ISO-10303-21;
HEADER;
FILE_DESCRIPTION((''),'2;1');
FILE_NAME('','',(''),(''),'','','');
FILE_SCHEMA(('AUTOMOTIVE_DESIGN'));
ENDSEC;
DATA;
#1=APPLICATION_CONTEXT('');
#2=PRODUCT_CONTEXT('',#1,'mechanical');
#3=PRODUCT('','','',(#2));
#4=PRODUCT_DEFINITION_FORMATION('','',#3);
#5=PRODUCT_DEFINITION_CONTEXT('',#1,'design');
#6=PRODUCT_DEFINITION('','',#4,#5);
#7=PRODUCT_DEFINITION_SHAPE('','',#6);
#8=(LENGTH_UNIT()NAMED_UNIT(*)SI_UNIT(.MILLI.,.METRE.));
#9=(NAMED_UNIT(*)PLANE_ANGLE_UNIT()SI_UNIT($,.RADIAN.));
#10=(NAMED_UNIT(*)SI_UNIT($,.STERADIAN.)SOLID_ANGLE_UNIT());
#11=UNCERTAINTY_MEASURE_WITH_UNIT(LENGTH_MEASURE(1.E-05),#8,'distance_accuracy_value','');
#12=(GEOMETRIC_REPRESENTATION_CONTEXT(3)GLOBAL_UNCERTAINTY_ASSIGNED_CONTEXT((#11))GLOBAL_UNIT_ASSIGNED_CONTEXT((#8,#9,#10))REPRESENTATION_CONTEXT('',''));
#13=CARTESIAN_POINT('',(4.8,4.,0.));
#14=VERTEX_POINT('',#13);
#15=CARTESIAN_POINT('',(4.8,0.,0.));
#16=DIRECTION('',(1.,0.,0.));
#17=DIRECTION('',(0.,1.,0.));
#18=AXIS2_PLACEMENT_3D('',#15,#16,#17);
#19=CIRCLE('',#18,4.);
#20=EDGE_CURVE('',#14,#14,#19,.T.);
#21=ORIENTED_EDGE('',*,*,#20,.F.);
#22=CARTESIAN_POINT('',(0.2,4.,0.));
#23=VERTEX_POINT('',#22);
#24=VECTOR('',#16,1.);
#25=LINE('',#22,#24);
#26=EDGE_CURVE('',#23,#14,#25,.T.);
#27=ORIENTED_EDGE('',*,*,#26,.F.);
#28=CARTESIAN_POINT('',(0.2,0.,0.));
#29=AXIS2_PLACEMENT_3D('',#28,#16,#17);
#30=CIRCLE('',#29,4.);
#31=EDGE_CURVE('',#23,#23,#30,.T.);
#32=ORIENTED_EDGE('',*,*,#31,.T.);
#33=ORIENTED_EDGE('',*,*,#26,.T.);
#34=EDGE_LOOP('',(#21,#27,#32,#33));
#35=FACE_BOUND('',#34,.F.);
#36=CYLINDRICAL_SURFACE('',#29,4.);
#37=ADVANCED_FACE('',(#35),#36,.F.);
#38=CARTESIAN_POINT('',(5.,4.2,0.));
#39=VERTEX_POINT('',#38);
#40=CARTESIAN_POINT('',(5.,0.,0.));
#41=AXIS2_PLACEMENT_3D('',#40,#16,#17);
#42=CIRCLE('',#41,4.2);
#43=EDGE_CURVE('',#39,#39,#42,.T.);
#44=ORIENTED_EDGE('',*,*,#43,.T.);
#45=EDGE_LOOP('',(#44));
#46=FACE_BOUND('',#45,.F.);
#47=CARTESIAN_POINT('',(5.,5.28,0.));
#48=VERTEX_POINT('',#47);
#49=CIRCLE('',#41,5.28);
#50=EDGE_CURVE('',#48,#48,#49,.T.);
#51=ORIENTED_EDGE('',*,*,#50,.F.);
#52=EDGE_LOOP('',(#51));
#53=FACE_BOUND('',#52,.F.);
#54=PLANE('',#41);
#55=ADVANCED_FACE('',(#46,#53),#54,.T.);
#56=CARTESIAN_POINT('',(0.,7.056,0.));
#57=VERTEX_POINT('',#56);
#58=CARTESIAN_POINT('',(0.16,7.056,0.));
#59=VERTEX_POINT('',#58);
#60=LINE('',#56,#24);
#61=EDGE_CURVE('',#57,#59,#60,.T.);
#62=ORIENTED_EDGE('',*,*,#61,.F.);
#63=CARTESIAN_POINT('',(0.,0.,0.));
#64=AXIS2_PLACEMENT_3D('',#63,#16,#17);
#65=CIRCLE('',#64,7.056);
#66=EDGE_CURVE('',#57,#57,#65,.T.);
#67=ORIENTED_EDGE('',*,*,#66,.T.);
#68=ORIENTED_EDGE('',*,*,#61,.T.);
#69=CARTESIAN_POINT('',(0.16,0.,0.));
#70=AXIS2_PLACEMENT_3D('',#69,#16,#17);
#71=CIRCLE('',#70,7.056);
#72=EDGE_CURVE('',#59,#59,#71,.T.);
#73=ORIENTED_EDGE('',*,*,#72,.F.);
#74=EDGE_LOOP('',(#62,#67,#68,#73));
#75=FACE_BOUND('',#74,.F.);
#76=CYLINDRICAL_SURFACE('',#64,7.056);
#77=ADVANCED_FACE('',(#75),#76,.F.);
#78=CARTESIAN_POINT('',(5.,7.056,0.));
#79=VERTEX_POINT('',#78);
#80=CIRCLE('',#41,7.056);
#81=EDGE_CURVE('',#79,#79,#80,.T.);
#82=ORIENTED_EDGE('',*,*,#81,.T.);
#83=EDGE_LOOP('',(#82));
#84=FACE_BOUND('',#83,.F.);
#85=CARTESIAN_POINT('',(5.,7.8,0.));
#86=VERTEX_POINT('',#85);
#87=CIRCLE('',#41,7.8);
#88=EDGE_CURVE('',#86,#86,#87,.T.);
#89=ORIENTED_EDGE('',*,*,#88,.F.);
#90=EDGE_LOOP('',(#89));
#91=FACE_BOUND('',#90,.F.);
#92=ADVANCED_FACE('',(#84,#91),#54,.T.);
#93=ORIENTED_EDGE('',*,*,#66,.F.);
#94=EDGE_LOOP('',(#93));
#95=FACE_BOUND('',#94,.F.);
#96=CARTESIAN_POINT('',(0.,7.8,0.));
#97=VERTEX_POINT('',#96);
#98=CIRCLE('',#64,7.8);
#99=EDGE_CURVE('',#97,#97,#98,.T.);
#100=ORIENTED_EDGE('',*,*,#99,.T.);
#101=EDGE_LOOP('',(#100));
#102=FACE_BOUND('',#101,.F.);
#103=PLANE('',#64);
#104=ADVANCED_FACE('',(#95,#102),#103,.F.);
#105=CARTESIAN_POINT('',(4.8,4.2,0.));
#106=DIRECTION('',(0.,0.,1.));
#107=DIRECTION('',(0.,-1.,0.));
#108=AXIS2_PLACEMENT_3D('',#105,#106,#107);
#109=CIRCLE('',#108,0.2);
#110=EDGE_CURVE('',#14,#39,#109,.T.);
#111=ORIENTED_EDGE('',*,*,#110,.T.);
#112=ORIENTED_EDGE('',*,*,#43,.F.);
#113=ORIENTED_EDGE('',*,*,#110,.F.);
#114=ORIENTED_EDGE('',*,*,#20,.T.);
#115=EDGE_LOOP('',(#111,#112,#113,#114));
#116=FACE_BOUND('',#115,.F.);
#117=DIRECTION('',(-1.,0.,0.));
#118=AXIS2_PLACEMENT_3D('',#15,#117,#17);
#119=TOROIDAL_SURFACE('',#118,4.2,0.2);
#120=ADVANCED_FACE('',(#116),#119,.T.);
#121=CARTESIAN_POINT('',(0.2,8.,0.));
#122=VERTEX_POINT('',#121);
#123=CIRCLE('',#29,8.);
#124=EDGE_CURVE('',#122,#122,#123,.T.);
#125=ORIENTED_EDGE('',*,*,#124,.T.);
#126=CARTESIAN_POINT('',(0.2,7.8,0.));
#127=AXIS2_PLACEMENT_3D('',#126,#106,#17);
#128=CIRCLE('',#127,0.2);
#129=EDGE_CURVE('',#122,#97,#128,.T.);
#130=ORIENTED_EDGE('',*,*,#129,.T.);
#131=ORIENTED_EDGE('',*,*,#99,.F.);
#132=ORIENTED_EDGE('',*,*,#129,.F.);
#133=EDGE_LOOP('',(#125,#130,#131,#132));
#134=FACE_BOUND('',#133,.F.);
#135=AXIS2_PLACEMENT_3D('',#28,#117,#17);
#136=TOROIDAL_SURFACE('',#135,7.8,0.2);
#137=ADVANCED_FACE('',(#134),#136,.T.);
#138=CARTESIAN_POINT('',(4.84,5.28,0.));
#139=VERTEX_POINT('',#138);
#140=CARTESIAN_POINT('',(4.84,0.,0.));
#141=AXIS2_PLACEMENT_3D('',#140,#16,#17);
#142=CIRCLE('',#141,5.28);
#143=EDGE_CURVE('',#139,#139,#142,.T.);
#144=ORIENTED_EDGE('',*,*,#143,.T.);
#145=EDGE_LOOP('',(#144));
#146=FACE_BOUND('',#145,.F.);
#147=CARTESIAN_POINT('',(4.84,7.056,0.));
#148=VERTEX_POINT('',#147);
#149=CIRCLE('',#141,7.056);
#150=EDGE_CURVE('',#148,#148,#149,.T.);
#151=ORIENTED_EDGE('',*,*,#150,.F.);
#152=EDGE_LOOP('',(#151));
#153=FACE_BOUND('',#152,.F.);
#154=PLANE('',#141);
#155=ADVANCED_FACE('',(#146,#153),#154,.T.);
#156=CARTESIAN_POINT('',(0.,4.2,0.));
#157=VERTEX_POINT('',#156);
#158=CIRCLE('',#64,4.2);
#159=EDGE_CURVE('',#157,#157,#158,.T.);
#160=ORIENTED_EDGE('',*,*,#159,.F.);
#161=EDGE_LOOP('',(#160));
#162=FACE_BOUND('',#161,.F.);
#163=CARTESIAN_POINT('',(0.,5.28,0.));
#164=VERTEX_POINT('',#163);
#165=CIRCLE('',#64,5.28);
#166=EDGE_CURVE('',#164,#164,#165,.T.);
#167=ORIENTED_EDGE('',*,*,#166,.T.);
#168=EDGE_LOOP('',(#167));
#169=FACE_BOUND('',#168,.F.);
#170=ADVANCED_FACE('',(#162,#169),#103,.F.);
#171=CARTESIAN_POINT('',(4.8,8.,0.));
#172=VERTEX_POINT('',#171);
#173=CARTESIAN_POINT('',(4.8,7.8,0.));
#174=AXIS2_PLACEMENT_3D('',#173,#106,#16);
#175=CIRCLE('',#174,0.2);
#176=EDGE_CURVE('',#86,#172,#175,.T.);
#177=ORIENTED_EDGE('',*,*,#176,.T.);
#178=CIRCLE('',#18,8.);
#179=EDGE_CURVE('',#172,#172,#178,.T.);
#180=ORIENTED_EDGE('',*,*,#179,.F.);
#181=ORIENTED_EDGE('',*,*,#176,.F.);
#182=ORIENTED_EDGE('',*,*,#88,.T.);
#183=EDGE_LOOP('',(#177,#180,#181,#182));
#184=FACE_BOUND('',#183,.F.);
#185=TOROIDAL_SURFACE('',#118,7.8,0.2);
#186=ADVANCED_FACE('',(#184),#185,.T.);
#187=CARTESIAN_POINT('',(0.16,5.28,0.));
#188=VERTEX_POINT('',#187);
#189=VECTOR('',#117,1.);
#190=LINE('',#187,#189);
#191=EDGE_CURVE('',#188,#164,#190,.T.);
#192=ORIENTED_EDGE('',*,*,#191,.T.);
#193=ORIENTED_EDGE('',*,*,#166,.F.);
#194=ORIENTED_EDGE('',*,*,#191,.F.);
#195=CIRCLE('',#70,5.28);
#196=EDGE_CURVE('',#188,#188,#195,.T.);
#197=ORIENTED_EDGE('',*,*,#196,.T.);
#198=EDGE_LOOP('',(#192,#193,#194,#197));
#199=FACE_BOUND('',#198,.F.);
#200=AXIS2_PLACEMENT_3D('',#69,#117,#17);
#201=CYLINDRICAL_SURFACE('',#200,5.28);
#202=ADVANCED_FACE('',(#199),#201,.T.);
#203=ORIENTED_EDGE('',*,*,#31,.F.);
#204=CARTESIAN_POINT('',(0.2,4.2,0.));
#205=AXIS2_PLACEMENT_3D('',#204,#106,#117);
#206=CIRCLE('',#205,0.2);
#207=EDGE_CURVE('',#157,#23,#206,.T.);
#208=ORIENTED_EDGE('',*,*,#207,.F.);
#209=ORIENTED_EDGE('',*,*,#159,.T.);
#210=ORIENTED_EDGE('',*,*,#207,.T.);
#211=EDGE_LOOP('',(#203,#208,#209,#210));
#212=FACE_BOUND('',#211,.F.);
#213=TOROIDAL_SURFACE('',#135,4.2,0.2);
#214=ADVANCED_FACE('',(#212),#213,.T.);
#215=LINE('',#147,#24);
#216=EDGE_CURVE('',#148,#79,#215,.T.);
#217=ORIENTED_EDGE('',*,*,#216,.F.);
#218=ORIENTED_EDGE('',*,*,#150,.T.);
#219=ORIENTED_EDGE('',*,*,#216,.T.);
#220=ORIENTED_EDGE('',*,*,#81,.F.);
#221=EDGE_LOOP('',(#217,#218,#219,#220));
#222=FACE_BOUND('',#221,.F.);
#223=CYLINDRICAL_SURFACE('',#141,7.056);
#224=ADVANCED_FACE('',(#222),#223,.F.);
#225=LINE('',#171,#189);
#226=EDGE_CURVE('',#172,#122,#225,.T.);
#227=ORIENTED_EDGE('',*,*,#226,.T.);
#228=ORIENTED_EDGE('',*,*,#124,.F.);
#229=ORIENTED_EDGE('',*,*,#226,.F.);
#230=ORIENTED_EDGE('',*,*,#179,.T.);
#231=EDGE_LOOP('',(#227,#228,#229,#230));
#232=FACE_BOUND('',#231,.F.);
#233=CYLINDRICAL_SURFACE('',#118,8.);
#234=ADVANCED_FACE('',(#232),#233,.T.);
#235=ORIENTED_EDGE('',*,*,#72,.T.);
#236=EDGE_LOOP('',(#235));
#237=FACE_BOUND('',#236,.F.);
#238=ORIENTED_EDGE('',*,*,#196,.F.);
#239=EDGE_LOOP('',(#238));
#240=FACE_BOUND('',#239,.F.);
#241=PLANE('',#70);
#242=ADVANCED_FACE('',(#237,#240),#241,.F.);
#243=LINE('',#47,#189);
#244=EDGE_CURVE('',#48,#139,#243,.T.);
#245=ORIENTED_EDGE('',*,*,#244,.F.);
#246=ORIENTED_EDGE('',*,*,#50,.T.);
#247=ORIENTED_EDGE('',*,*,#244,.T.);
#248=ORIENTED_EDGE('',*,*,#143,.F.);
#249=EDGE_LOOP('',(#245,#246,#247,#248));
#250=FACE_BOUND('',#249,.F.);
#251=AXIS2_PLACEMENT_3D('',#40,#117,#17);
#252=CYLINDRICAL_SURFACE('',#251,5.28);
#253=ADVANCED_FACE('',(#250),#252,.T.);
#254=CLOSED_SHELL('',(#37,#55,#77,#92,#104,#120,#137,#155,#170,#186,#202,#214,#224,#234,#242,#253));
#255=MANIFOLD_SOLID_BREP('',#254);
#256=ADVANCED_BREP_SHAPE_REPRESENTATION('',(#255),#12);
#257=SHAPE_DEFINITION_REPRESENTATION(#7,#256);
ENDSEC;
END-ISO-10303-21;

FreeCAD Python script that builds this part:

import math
import FreeCAD as App
import Part
import Sketcher

V = App.Vector

doc = App.newDocument("Part")
params = doc.addObject("Spreadsheet::Sheet", "Params")
for row, (alias, value) in enumerate([
    ("sketch1_radius", "0.2 mm"),
    ("sketch1_width", "4.6 mm"),
    ("sketch1_width2", "0.16 mm"),
    ("sketch1_height", "1.08 mm"),
    ("revolution_angle", "360 deg"),
], start=1):
    params.set(f"A{row}", alias)
    params.set(f"B{row}", "=" + value)
    params.setAlias(f"B{row}", alias)

body = doc.addObject("PartDesign::Body", "Body")

# Sketch on XY plane
sketch1 = body.newObject("Sketcher::SketchObject", "Sketch")
sketch1.AttachmentSupport = (doc.getObject("XY_Plane"), [""])
sketch1.MapMode = "FlatFace"
sketch1.addGeometry([
    Part.LineSegment(V(0, 5.28, 0), V(0, 4.2, 0)),  # 0
    Part.ArcOfCircle(Part.Circle(V(0.2, 4.2, 0), V(0, 0, 1), 0.2), math.radians(180), math.radians(270)),  # 1
    Part.LineSegment(V(0.2, 4, 0), V(4.8, 4, 0)),  # 2
    Part.ArcOfCircle(Part.Circle(V(4.8, 4.2, 0), V(0, 0, 1), 0.2), math.radians(-90), math.radians(0)),  # 3
    Part.LineSegment(V(5, 4.2, 0), V(5, 5.28, 0)),  # 4
    Part.LineSegment(V(5, 5.28, 0), V(4.84, 5.28, 0)),  # 5
    Part.LineSegment(V(4.84, 5.28, 0), V(4.84, 7.056, 0)),  # 6
    Part.LineSegment(V(4.84, 7.056, 0), V(5, 7.056, 0)),  # 7
    Part.LineSegment(V(5, 7.056, 0), V(5, 7.8, 0)),  # 8
    Part.ArcOfCircle(Part.Circle(V(4.8, 7.8, 0), V(0, 0, 1), 0.2), math.radians(0), math.radians(90)),  # 9
    Part.LineSegment(V(4.8, 8, 0), V(0.2, 8, 0)),  # 10
    Part.ArcOfCircle(Part.Circle(V(0.2, 7.8, 0), V(0, 0, 1), 0.2), math.radians(90), math.radians(180)),  # 11
    Part.LineSegment(V(0, 7.8, 0), V(0, 7.056, 0)),  # 12
    Part.LineSegment(V(0, 7.056, 0), V(0.16, 7.056, 0)),  # 13
    Part.LineSegment(V(0.16, 7.056, 0), V(0.16, 5.28, 0)),  # 14
    Part.LineSegment(V(0.16, 5.28, 0), V(0, 5.28, 0)),  # 15
], False)
sketch1.addConstraint([
    Sketcher.Constraint("Tangent", 0, 2, 1, 1),
    Sketcher.Constraint("Tangent", 1, 2, 2, 1),
    Sketcher.Constraint("Tangent", 2, 2, 3, 1),
    Sketcher.Constraint("Tangent", 3, 2, 4, 1),
    Sketcher.Constraint("Coincident", 4, 2, 5, 1),
    Sketcher.Constraint("Coincident", 5, 2, 6, 1),
    Sketcher.Constraint("Coincident", 6, 2, 7, 1),
    Sketcher.Constraint("Coincident", 7, 2, 8, 1),
    Sketcher.Constraint("Tangent", 8, 2, 9, 1),
    Sketcher.Constraint("Tangent", 9, 2, 10, 1),
    Sketcher.Constraint("Tangent", 10, 2, 11, 1),
    Sketcher.Constraint("Tangent", 11, 2, 12, 1),
    Sketcher.Constraint("Coincident", 12, 2, 13, 1),
    Sketcher.Constraint("Coincident", 13, 2, 14, 1),
    Sketcher.Constraint("Coincident", 14, 2, 15, 1),
    Sketcher.Constraint("Coincident", 15, 2, 0, 1),
    Sketcher.Constraint("Vertical", 0),
    Sketcher.Constraint("Horizontal", 2),
    Sketcher.Constraint("Vertical", 4),
    Sketcher.Constraint("Horizontal", 5),
    Sketcher.Constraint("Vertical", 6),
    Sketcher.Constraint("Horizontal", 7),
    Sketcher.Constraint("Vertical", 8),
    Sketcher.Constraint("Horizontal", 10),
    Sketcher.Constraint("Vertical", 12),
    Sketcher.Constraint("Horizontal", 13),
    Sketcher.Constraint("Vertical", 14),
    Sketcher.Constraint("Horizontal", 15),
    Sketcher.Constraint("Equal", 1, 3),
    Sketcher.Constraint("Equal", 3, 9),
    Sketcher.Constraint("Equal", 9, 11),
    Sketcher.Constraint("PointOnObject", 0, 2, -2),
    Sketcher.Constraint("PointOnObject", 11, 2, -2),
    Sketcher.Constraint("Horizontal", 7, 2, 12, 2),
    Sketcher.Constraint("Horizontal", 5, 2, 14, 2),
    Sketcher.Constraint("Vertical", 3, 3, 9, 3),
    Sketcher.Constraint("Equal", 7, 13),
    Sketcher.Constraint("Radius", 1, 0.2),
    Sketcher.Constraint("DistanceX", 2, 1, 2, 2, 4.6),
    Sketcher.Constraint("DistanceY", -1, 1, 1, 2, 4.0),
    Sketcher.Constraint("DistanceY", -1, 1, 9, 2, 8.0),
    Sketcher.Constraint("DistanceX", 5, 2, 5, 1, 0.16),
    Sketcher.Constraint("DistanceY", 0, 2, 0, 1, 1.08),
    Sketcher.Constraint("DistanceY", 6, 1, 6, 2, 1.776),
])
sketch1.setExpression("Constraints[37]", "Params.sketch1_radius")
sketch1.setExpression("Constraints[38]", "Params.sketch1_width")
sketch1.setExpression("Constraints[41]", "Params.sketch1_width2")
sketch1.setExpression("Constraints[42]", "Params.sketch1_height")
revolution = body.newObject("PartDesign::Revolution", "Revolution")
revolution.Profile = sketch1
revolution.ReferenceAxis = (sketch1, ["H_Axis"])
revolution.setExpression("Angle", "Params.revolution_angle")

doc.recompute()
